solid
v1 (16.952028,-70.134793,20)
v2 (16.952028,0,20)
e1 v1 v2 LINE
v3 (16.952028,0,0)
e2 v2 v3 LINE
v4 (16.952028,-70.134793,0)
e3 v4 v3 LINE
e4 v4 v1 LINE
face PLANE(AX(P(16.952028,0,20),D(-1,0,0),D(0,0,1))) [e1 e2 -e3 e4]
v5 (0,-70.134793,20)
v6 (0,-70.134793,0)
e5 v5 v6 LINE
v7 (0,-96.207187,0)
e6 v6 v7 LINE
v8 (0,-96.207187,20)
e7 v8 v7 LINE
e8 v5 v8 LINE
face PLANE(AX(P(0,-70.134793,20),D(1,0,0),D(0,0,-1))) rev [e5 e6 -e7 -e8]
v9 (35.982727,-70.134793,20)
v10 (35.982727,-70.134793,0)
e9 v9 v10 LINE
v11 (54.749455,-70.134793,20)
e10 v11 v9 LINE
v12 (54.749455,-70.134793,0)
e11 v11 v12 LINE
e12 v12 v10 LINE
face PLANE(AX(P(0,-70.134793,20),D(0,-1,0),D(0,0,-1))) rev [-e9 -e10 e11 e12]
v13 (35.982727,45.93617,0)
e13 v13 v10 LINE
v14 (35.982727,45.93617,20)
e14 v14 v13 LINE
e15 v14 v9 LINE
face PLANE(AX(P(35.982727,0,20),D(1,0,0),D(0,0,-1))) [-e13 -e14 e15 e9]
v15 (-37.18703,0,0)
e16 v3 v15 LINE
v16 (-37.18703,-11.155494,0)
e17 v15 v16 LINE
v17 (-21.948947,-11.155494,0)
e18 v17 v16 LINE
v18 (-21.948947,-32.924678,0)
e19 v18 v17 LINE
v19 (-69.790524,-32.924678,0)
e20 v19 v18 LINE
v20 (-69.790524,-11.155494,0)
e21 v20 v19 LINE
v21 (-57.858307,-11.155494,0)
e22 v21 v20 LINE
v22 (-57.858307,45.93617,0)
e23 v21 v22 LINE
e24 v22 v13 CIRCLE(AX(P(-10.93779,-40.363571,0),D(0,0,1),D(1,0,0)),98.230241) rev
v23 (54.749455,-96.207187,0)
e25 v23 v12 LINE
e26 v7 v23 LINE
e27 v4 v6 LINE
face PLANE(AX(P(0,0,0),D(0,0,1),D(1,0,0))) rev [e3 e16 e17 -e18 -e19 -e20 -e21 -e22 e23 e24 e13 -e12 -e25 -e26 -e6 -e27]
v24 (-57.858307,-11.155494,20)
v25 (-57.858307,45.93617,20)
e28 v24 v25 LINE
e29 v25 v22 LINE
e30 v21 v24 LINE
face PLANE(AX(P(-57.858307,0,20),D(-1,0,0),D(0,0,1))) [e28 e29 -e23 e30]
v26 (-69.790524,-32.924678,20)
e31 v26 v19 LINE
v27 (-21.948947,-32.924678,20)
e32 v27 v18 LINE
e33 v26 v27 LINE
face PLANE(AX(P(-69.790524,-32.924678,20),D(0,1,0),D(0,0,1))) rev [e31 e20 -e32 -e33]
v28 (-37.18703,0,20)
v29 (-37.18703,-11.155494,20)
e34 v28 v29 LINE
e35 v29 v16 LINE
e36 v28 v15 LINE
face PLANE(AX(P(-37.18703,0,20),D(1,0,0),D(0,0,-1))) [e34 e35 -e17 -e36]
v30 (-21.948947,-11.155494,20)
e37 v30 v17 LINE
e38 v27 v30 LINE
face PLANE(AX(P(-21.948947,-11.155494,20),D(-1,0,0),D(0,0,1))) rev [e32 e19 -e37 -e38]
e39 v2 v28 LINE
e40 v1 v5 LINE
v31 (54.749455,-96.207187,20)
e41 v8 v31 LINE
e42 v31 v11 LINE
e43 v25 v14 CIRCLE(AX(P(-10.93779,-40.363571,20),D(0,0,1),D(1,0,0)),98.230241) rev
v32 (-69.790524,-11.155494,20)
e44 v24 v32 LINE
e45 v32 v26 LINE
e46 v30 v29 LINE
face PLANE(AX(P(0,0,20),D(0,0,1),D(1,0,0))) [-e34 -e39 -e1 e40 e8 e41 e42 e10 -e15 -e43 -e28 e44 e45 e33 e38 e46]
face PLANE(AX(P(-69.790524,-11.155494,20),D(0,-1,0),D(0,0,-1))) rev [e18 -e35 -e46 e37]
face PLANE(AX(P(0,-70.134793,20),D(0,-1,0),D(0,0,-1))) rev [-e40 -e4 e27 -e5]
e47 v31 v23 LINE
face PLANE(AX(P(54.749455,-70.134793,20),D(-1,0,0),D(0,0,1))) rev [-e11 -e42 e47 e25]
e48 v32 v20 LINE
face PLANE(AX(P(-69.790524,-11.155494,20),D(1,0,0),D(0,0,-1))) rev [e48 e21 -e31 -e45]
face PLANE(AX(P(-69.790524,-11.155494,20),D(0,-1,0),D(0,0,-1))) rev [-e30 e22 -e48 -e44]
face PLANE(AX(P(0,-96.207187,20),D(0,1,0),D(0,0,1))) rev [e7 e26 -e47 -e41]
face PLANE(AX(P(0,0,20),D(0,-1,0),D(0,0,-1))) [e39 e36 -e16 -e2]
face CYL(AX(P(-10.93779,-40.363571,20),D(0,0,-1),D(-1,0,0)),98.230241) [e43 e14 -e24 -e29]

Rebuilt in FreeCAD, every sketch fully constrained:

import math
import FreeCAD as App
import Part
import Sketcher
from FreeCAD import Vector
Q = App.Units.Quantity

doc = App.newDocument("Part")
body = doc.addObject("PartDesign::Body", "Body")

# Sketch on XY plane
sketch1 = body.newObject("Sketcher::SketchObject", "Sketch")
sketch1.AttachmentSupport = (doc.getObject("XY_Plane"), [""])
sketch1.MapMode = "FlatFace"
sketch1.addGeometry([
    Part.ArcOfCircle(Part.Circle(Vector(-11, -40, 0), Vector(0, 0, 1), 98), math.radians(61), math.radians(119)),  # 0
    Part.LineSegment(Vector(-58, 46, 0), Vector(-58, -23, 0)),  # 1
    Part.LineSegment(Vector(-58, -23, 0), Vector(-37, -23, 0)),  # 2
    Part.LineSegment(Vector(-37, -23, 0), Vector(-37, 0, 0)),  # 3
    Part.LineSegment(Vector(-37, 0, 0), Vector(17, 0, 0)),  # 4
    Part.LineSegment(Vector(17, 0, 0), Vector(17, -86, 0)),  # 5
    Part.LineSegment(Vector(17, -86, 0), Vector(36, -86, 0)),  # 6
    Part.LineSegment(Vector(36, -86, 0), Vector(36, 46, 0)),  # 7
], False)
sketch1.addConstraint([
    Sketcher.Constraint("Coincident", 0, 2, 1, 1),
    Sketcher.Constraint("Coincident", 1, 2, 2, 1),
    Sketcher.Constraint("Coincident", 2, 2, 3, 1),
    Sketcher.Constraint("Coincident", 3, 2, 4, 1),
    Sketcher.Constraint("Coincident", 4, 2, 5, 1),
    Sketcher.Constraint("Coincident", 5, 2, 6, 1),
    Sketcher.Constraint("Coincident", 6, 2, 7, 1),
    Sketcher.Constraint("Coincident", 7, 2, 0, 1),
    Sketcher.Constraint("Vertical", 1),
    Sketcher.Constraint("Horizontal", 2),
    Sketcher.Constraint("Vertical", 3),
    Sketcher.Constraint("Horizontal", 4),
    Sketcher.Constraint("Vertical", 5),
    Sketcher.Constraint("Horizontal", 6),
    Sketcher.Constraint("Vertical", 7),
    Sketcher.Constraint("PointOnObject", 3, 2, -1),
    Sketcher.Constraint("Horizontal", 0, 2, 7, 2),
    Sketcher.Constraint("Radius", 0, Q("98.230241 mm")),
    Sketcher.Constraint("DistanceX", 6, 1, 6, 2, Q("19.030699 mm")),
    Sketcher.Constraint("DistanceY", 1, 2, 1, 1, Q("68.57614 mm")),
    Sketcher.Constraint("DistanceY", 3, 1, 3, 2, Q("22.63997 mm")),
    Sketcher.Constraint("DistanceY", 5, 2, 5, 1, Q("85.966261 mm")),
    Sketcher.Constraint("DistanceY", 0, 3, 1, 2, Q("17.723602 mm")),
    Sketcher.Constraint("DistanceX", 2, 1, 2, 2, Q("20.671277 mm")),
    Sketcher.Constraint("DistanceX", 0, 3, -1, 1, Q("10.93779 mm")),
])
pad1 = body.newObject("PartDesign::Pad", "Pad")
pad1.Profile = sketch1
pad1.Length = 20

# Sketch on XY plane
sketch2 = body.newObject("Sketcher::SketchObject", "Sketch001")
sketch2.AttachmentSupport = (doc.getObject("XY_Plane"), [""])
sketch2.MapMode = "FlatFace"
sketch2.addGeometry([
    Part.LineSegment(Vector(-70, -11, 0), Vector(-70, -33, 0)),  # 0
    Part.LineSegment(Vector(-70, -33, 0), Vector(-22, -33, 0)),  # 1
    Part.LineSegment(Vector(-22, -33, 0), Vector(-22, -11, 0)),  # 2
    Part.LineSegment(Vector(-22, -11, 0), Vector(-70, -11, 0)),  # 3
    Part.LineSegment(Vector(0, -70, 0), Vector(0, -96, 0)),  # 4
    Part.LineSegment(Vector(0, -96, 0), Vector(55, -96, 0)),  # 5
    Part.LineSegment(Vector(55, -96, 0), Vector(55, -70, 0)),  # 6
    Part.LineSegment(Vector(55, -70, 0), Vector(0, -70, 0)),  # 7
], False)
sketch2.addConstraint([
    Sketcher.Constraint("Coincident", 0, 2, 1, 1),
    Sketcher.Constraint("Coincident", 1, 2, 2, 1),
    Sketcher.Constraint("Coincident", 2, 2, 3, 1),
    Sketcher.Constraint("Coincident", 3, 2, 0, 1),
    Sketcher.Constraint("Coincident", 4, 2, 5, 1),
    Sketcher.Constraint("Coincident", 5, 2, 6, 1),
    Sketcher.Constraint("Coincident", 6, 2, 7, 1),
    Sketcher.Constraint("Coincident", 7, 2, 4, 1),
    Sketcher.Constraint("Vertical", 0),
    Sketcher.Constraint("Horizontal", 1),
    Sketcher.Constraint("Vertical", 2),
    Sketcher.Constraint("Horizontal", 3),
    Sketcher.Constraint("Vertical", 4),
    Sketcher.Constraint("Horizontal", 5),
    Sketcher.Constraint("Vertical", 6),
    Sketcher.Constraint("Horizontal", 7),
    Sketcher.Constraint("PointOnObject", 4, 2, -2),
    Sketcher.Constraint("DistanceX", 1, 2, 5, 2, Q("76.698402 mm")),
    Sketcher.Constraint("DistanceY", 6, 2, 2, 2, Q("58.979299 mm")),
    Sketcher.Constraint("DistanceX", 1, 1, 1, 2, Q("47.841577 mm")),
    Sketcher.Constraint("DistanceX", 5, 1, 5, 2, Q("54.749455 mm")),
    Sketcher.Constraint("DistanceY", 0, 2, 0, 1, Q("21.769183 mm")),
    Sketcher.Constraint("DistanceY", 4, 2, 4, 1, Q("26.072394 mm")),
    Sketcher.Constraint("DistanceY", 0, 2, -1, 1, Q("32.924678 mm")),
])
pad2 = body.newObject("PartDesign::Pad", "Pad001")
pad2.Profile = sketch2
pad2.Length = 20

doc.recompute()
